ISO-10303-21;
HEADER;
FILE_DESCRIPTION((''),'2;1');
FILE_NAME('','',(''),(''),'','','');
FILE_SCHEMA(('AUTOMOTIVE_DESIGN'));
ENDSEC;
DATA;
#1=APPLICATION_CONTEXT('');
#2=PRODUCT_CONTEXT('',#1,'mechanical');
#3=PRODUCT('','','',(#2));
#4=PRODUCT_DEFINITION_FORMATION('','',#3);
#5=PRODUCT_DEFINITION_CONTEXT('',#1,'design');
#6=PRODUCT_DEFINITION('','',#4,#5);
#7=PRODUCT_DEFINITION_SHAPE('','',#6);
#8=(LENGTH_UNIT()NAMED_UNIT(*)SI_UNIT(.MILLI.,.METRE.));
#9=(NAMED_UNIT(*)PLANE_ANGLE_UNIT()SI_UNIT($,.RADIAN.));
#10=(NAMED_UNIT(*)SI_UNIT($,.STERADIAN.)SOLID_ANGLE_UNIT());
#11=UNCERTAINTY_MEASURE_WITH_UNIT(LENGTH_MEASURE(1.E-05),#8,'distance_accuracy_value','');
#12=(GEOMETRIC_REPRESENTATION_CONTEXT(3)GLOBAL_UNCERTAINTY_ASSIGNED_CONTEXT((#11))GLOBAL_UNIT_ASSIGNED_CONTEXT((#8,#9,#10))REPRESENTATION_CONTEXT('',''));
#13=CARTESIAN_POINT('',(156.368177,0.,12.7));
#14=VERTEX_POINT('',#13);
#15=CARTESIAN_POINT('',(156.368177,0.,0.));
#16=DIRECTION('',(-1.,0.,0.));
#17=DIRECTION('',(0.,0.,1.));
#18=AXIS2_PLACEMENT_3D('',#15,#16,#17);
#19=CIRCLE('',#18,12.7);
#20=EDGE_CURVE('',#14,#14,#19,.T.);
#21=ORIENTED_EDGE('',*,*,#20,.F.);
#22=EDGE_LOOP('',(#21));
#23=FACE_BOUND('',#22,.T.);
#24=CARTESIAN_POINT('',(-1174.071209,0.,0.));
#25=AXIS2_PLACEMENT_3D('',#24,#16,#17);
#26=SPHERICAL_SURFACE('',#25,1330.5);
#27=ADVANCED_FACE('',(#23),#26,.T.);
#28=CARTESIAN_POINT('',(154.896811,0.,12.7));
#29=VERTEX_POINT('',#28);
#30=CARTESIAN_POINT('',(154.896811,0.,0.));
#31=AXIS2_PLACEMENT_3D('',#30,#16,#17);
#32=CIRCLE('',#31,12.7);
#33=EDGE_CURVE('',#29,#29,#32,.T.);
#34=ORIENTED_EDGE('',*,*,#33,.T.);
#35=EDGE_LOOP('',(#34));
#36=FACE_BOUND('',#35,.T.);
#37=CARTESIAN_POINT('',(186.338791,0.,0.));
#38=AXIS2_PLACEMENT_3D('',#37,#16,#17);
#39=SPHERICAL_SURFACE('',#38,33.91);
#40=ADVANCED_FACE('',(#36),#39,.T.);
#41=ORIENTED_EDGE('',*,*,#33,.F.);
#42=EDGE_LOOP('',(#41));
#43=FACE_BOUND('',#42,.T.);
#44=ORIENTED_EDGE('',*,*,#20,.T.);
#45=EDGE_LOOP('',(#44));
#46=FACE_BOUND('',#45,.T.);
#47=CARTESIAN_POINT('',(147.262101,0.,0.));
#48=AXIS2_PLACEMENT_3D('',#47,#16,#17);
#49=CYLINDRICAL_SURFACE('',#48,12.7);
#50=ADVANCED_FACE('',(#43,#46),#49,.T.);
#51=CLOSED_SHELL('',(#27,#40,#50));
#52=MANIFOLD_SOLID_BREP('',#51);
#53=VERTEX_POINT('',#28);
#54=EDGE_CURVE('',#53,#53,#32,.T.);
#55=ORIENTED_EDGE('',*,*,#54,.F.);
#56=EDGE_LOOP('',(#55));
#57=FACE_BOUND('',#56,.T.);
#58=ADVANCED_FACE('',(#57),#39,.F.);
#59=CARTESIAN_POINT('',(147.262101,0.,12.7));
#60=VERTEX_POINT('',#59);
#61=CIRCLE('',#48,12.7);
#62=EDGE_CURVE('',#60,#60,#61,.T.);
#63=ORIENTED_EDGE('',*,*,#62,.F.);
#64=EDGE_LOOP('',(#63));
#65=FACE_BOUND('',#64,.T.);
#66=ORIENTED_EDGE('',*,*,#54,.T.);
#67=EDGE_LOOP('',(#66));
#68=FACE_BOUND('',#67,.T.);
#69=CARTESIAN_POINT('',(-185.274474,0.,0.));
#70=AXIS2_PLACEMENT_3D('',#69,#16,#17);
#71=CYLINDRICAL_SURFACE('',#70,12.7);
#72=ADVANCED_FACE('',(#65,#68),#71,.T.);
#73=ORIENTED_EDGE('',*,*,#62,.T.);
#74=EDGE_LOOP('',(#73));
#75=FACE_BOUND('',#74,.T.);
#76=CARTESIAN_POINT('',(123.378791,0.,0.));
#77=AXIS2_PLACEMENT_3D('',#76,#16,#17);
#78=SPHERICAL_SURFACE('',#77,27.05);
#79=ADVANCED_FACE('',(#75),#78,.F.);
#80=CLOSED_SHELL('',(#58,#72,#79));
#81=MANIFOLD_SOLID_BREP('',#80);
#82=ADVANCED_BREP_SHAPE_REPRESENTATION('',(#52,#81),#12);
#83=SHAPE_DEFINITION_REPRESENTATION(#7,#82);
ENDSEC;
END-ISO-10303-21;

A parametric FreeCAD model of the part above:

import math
import FreeCAD as App
import Part
import Sketcher
from FreeCAD import Vector
Q = App.Units.Quantity

doc = App.newDocument("Part")
body = doc.addObject("PartDesign::Body", "Body")

# Sketch on XZ plane
sketch1 = body.newObject("Sketcher::SketchObject", "Sketch")
sketch1.AttachmentSupport = (doc.getObject("XZ_Plane"), [""])
sketch1.MapMode = "FlatFace"
sketch1.addGeometry([
    Part.LineSegment(Vector(154.896811, -12.7, 0), Vector(147.262101, -12.7, 0)),
    Part.ArcOfCircle(Part.Circle(Vector(123.378791, 0, 0), Vector(0, 0, 1), 27.05), math.radians(-28.001905), math.radians(0)),
    Part.LineSegment(Vector(150.428791, 0, 0), Vector(152.428791, 0, 0)),
    Part.ArcOfCircle(Part.Circle(Vector(186.338791, 0, 0), Vector(0, 0, 1), 33.91), math.radians(-180), math.radians(-158.005302)),
], False)
sketch1.addConstraint([
    Sketcher.Constraint("Coincident", 0, 2, 1, 1),
    Sketcher.Constraint("Coincident", 1, 2, 2, 1),
    Sketcher.Constraint("Coincident", 2, 2, 3, 1),
    Sketcher.Constraint("Coincident", 3, 2, 0, 1),
    Sketcher.Constraint("Horizontal", 0),
    Sketcher.Constraint("Horizontal", 2),
    Sketcher.Constraint("PointOnObject", 1, 3, -1),
    Sketcher.Constraint("PointOnObject", 3, 3, -1),
    Sketcher.Constraint("PointOnObject", 1, 2, -1),
    Sketcher.Constraint("DistanceX", 2, 1, 2, 2, Q("2 mm")),
    Sketcher.Constraint("Radius", 1, Q("27.05 mm")),
    Sketcher.Constraint("Radius", 3, Q("33.91 mm")),
    Sketcher.Constraint("DistanceY", 0, 2, -1, 1, Q("12.7 mm")),
    Sketcher.Constraint("DistanceX", -1, 1, 0, 2, Q("147.262101 mm")),
])
revolution = body.newObject("PartDesign::Revolution", "Revolution")
revolution.Profile = sketch1
revolution.ReferenceAxis = (sketch1, ["H_Axis"])
revolution.Angle = 360
body2 = doc.addObject("PartDesign::Body", "Body001")

# Sketch on XZ plane
sketch2 = body2.newObject("Sketcher::SketchObject", "Sketch001")
sketch2.AttachmentSupport = (doc.getObject("XZ_Plane001"), [""])
sketch2.MapMode = "FlatFace"
sketch2.addGeometry([
    Part.LineSegment(Vector(156.368177, -12.7, 0), Vector(154.896811, -12.7, 0)),
    Part.ArcOfCircle(Part.Circle(Vector(186.338791, 0, 0), Vector(0, 0, 1), 33.91), math.radians(-180), math.radians(-158.005302)),
    Part.LineSegment(Vector(152.428791, 0, 0), Vector(156.428791, 0, 0)),
    Part.ArcOfCircle(Part.Circle(Vector(-1174.071235, 0, 0), Vector(0, 0, 1), 1330.500026), math.radians(-0.546913), math.radians(0)),
], False)
sketch2.addConstraint([
    Sketcher.Constraint("Coincident", 0, 2, 1, 2),
    Sketcher.Constraint("Coincident", 1, 1, 2, 1),
    Sketcher.Constraint("Coincident", 2, 2, 3, 2),
    Sketcher.Constraint("Coincident", 3, 1, 0, 1),
    Sketcher.Constraint("Horizontal", 0),
    Sketcher.Constraint("Horizontal", 2),
    Sketcher.Constraint("PointOnObject", 1, 3, -1),
    Sketcher.Constraint("PointOnObject", 3, 3, -1),
    Sketcher.Constraint("PointOnObject", 1, 1, -1),
    Sketcher.Constraint("DistanceX", 2, 1, 2, 2, Q("4 mm")),
    Sketcher.Constraint("Radius", 1, Q("33.91 mm")),
    Sketcher.Constraint("DistanceY", 0, 2, -1, 1, Q("12.7 mm")),
    Sketcher.Constraint("Radius", 3, Q("1330.500026 mm")),
    Sketcher.Constraint("DistanceX", -1, 1, 1, 3, Q("186.338791 mm")),
])
revolution2 = body2.newObject("PartDesign::Revolution", "Revolution001")
revolution2.Profile = sketch2
revolution2.ReferenceAxis = (sketch2, ["H_Axis"])
revolution2.Angle = 360

doc.recompute()
